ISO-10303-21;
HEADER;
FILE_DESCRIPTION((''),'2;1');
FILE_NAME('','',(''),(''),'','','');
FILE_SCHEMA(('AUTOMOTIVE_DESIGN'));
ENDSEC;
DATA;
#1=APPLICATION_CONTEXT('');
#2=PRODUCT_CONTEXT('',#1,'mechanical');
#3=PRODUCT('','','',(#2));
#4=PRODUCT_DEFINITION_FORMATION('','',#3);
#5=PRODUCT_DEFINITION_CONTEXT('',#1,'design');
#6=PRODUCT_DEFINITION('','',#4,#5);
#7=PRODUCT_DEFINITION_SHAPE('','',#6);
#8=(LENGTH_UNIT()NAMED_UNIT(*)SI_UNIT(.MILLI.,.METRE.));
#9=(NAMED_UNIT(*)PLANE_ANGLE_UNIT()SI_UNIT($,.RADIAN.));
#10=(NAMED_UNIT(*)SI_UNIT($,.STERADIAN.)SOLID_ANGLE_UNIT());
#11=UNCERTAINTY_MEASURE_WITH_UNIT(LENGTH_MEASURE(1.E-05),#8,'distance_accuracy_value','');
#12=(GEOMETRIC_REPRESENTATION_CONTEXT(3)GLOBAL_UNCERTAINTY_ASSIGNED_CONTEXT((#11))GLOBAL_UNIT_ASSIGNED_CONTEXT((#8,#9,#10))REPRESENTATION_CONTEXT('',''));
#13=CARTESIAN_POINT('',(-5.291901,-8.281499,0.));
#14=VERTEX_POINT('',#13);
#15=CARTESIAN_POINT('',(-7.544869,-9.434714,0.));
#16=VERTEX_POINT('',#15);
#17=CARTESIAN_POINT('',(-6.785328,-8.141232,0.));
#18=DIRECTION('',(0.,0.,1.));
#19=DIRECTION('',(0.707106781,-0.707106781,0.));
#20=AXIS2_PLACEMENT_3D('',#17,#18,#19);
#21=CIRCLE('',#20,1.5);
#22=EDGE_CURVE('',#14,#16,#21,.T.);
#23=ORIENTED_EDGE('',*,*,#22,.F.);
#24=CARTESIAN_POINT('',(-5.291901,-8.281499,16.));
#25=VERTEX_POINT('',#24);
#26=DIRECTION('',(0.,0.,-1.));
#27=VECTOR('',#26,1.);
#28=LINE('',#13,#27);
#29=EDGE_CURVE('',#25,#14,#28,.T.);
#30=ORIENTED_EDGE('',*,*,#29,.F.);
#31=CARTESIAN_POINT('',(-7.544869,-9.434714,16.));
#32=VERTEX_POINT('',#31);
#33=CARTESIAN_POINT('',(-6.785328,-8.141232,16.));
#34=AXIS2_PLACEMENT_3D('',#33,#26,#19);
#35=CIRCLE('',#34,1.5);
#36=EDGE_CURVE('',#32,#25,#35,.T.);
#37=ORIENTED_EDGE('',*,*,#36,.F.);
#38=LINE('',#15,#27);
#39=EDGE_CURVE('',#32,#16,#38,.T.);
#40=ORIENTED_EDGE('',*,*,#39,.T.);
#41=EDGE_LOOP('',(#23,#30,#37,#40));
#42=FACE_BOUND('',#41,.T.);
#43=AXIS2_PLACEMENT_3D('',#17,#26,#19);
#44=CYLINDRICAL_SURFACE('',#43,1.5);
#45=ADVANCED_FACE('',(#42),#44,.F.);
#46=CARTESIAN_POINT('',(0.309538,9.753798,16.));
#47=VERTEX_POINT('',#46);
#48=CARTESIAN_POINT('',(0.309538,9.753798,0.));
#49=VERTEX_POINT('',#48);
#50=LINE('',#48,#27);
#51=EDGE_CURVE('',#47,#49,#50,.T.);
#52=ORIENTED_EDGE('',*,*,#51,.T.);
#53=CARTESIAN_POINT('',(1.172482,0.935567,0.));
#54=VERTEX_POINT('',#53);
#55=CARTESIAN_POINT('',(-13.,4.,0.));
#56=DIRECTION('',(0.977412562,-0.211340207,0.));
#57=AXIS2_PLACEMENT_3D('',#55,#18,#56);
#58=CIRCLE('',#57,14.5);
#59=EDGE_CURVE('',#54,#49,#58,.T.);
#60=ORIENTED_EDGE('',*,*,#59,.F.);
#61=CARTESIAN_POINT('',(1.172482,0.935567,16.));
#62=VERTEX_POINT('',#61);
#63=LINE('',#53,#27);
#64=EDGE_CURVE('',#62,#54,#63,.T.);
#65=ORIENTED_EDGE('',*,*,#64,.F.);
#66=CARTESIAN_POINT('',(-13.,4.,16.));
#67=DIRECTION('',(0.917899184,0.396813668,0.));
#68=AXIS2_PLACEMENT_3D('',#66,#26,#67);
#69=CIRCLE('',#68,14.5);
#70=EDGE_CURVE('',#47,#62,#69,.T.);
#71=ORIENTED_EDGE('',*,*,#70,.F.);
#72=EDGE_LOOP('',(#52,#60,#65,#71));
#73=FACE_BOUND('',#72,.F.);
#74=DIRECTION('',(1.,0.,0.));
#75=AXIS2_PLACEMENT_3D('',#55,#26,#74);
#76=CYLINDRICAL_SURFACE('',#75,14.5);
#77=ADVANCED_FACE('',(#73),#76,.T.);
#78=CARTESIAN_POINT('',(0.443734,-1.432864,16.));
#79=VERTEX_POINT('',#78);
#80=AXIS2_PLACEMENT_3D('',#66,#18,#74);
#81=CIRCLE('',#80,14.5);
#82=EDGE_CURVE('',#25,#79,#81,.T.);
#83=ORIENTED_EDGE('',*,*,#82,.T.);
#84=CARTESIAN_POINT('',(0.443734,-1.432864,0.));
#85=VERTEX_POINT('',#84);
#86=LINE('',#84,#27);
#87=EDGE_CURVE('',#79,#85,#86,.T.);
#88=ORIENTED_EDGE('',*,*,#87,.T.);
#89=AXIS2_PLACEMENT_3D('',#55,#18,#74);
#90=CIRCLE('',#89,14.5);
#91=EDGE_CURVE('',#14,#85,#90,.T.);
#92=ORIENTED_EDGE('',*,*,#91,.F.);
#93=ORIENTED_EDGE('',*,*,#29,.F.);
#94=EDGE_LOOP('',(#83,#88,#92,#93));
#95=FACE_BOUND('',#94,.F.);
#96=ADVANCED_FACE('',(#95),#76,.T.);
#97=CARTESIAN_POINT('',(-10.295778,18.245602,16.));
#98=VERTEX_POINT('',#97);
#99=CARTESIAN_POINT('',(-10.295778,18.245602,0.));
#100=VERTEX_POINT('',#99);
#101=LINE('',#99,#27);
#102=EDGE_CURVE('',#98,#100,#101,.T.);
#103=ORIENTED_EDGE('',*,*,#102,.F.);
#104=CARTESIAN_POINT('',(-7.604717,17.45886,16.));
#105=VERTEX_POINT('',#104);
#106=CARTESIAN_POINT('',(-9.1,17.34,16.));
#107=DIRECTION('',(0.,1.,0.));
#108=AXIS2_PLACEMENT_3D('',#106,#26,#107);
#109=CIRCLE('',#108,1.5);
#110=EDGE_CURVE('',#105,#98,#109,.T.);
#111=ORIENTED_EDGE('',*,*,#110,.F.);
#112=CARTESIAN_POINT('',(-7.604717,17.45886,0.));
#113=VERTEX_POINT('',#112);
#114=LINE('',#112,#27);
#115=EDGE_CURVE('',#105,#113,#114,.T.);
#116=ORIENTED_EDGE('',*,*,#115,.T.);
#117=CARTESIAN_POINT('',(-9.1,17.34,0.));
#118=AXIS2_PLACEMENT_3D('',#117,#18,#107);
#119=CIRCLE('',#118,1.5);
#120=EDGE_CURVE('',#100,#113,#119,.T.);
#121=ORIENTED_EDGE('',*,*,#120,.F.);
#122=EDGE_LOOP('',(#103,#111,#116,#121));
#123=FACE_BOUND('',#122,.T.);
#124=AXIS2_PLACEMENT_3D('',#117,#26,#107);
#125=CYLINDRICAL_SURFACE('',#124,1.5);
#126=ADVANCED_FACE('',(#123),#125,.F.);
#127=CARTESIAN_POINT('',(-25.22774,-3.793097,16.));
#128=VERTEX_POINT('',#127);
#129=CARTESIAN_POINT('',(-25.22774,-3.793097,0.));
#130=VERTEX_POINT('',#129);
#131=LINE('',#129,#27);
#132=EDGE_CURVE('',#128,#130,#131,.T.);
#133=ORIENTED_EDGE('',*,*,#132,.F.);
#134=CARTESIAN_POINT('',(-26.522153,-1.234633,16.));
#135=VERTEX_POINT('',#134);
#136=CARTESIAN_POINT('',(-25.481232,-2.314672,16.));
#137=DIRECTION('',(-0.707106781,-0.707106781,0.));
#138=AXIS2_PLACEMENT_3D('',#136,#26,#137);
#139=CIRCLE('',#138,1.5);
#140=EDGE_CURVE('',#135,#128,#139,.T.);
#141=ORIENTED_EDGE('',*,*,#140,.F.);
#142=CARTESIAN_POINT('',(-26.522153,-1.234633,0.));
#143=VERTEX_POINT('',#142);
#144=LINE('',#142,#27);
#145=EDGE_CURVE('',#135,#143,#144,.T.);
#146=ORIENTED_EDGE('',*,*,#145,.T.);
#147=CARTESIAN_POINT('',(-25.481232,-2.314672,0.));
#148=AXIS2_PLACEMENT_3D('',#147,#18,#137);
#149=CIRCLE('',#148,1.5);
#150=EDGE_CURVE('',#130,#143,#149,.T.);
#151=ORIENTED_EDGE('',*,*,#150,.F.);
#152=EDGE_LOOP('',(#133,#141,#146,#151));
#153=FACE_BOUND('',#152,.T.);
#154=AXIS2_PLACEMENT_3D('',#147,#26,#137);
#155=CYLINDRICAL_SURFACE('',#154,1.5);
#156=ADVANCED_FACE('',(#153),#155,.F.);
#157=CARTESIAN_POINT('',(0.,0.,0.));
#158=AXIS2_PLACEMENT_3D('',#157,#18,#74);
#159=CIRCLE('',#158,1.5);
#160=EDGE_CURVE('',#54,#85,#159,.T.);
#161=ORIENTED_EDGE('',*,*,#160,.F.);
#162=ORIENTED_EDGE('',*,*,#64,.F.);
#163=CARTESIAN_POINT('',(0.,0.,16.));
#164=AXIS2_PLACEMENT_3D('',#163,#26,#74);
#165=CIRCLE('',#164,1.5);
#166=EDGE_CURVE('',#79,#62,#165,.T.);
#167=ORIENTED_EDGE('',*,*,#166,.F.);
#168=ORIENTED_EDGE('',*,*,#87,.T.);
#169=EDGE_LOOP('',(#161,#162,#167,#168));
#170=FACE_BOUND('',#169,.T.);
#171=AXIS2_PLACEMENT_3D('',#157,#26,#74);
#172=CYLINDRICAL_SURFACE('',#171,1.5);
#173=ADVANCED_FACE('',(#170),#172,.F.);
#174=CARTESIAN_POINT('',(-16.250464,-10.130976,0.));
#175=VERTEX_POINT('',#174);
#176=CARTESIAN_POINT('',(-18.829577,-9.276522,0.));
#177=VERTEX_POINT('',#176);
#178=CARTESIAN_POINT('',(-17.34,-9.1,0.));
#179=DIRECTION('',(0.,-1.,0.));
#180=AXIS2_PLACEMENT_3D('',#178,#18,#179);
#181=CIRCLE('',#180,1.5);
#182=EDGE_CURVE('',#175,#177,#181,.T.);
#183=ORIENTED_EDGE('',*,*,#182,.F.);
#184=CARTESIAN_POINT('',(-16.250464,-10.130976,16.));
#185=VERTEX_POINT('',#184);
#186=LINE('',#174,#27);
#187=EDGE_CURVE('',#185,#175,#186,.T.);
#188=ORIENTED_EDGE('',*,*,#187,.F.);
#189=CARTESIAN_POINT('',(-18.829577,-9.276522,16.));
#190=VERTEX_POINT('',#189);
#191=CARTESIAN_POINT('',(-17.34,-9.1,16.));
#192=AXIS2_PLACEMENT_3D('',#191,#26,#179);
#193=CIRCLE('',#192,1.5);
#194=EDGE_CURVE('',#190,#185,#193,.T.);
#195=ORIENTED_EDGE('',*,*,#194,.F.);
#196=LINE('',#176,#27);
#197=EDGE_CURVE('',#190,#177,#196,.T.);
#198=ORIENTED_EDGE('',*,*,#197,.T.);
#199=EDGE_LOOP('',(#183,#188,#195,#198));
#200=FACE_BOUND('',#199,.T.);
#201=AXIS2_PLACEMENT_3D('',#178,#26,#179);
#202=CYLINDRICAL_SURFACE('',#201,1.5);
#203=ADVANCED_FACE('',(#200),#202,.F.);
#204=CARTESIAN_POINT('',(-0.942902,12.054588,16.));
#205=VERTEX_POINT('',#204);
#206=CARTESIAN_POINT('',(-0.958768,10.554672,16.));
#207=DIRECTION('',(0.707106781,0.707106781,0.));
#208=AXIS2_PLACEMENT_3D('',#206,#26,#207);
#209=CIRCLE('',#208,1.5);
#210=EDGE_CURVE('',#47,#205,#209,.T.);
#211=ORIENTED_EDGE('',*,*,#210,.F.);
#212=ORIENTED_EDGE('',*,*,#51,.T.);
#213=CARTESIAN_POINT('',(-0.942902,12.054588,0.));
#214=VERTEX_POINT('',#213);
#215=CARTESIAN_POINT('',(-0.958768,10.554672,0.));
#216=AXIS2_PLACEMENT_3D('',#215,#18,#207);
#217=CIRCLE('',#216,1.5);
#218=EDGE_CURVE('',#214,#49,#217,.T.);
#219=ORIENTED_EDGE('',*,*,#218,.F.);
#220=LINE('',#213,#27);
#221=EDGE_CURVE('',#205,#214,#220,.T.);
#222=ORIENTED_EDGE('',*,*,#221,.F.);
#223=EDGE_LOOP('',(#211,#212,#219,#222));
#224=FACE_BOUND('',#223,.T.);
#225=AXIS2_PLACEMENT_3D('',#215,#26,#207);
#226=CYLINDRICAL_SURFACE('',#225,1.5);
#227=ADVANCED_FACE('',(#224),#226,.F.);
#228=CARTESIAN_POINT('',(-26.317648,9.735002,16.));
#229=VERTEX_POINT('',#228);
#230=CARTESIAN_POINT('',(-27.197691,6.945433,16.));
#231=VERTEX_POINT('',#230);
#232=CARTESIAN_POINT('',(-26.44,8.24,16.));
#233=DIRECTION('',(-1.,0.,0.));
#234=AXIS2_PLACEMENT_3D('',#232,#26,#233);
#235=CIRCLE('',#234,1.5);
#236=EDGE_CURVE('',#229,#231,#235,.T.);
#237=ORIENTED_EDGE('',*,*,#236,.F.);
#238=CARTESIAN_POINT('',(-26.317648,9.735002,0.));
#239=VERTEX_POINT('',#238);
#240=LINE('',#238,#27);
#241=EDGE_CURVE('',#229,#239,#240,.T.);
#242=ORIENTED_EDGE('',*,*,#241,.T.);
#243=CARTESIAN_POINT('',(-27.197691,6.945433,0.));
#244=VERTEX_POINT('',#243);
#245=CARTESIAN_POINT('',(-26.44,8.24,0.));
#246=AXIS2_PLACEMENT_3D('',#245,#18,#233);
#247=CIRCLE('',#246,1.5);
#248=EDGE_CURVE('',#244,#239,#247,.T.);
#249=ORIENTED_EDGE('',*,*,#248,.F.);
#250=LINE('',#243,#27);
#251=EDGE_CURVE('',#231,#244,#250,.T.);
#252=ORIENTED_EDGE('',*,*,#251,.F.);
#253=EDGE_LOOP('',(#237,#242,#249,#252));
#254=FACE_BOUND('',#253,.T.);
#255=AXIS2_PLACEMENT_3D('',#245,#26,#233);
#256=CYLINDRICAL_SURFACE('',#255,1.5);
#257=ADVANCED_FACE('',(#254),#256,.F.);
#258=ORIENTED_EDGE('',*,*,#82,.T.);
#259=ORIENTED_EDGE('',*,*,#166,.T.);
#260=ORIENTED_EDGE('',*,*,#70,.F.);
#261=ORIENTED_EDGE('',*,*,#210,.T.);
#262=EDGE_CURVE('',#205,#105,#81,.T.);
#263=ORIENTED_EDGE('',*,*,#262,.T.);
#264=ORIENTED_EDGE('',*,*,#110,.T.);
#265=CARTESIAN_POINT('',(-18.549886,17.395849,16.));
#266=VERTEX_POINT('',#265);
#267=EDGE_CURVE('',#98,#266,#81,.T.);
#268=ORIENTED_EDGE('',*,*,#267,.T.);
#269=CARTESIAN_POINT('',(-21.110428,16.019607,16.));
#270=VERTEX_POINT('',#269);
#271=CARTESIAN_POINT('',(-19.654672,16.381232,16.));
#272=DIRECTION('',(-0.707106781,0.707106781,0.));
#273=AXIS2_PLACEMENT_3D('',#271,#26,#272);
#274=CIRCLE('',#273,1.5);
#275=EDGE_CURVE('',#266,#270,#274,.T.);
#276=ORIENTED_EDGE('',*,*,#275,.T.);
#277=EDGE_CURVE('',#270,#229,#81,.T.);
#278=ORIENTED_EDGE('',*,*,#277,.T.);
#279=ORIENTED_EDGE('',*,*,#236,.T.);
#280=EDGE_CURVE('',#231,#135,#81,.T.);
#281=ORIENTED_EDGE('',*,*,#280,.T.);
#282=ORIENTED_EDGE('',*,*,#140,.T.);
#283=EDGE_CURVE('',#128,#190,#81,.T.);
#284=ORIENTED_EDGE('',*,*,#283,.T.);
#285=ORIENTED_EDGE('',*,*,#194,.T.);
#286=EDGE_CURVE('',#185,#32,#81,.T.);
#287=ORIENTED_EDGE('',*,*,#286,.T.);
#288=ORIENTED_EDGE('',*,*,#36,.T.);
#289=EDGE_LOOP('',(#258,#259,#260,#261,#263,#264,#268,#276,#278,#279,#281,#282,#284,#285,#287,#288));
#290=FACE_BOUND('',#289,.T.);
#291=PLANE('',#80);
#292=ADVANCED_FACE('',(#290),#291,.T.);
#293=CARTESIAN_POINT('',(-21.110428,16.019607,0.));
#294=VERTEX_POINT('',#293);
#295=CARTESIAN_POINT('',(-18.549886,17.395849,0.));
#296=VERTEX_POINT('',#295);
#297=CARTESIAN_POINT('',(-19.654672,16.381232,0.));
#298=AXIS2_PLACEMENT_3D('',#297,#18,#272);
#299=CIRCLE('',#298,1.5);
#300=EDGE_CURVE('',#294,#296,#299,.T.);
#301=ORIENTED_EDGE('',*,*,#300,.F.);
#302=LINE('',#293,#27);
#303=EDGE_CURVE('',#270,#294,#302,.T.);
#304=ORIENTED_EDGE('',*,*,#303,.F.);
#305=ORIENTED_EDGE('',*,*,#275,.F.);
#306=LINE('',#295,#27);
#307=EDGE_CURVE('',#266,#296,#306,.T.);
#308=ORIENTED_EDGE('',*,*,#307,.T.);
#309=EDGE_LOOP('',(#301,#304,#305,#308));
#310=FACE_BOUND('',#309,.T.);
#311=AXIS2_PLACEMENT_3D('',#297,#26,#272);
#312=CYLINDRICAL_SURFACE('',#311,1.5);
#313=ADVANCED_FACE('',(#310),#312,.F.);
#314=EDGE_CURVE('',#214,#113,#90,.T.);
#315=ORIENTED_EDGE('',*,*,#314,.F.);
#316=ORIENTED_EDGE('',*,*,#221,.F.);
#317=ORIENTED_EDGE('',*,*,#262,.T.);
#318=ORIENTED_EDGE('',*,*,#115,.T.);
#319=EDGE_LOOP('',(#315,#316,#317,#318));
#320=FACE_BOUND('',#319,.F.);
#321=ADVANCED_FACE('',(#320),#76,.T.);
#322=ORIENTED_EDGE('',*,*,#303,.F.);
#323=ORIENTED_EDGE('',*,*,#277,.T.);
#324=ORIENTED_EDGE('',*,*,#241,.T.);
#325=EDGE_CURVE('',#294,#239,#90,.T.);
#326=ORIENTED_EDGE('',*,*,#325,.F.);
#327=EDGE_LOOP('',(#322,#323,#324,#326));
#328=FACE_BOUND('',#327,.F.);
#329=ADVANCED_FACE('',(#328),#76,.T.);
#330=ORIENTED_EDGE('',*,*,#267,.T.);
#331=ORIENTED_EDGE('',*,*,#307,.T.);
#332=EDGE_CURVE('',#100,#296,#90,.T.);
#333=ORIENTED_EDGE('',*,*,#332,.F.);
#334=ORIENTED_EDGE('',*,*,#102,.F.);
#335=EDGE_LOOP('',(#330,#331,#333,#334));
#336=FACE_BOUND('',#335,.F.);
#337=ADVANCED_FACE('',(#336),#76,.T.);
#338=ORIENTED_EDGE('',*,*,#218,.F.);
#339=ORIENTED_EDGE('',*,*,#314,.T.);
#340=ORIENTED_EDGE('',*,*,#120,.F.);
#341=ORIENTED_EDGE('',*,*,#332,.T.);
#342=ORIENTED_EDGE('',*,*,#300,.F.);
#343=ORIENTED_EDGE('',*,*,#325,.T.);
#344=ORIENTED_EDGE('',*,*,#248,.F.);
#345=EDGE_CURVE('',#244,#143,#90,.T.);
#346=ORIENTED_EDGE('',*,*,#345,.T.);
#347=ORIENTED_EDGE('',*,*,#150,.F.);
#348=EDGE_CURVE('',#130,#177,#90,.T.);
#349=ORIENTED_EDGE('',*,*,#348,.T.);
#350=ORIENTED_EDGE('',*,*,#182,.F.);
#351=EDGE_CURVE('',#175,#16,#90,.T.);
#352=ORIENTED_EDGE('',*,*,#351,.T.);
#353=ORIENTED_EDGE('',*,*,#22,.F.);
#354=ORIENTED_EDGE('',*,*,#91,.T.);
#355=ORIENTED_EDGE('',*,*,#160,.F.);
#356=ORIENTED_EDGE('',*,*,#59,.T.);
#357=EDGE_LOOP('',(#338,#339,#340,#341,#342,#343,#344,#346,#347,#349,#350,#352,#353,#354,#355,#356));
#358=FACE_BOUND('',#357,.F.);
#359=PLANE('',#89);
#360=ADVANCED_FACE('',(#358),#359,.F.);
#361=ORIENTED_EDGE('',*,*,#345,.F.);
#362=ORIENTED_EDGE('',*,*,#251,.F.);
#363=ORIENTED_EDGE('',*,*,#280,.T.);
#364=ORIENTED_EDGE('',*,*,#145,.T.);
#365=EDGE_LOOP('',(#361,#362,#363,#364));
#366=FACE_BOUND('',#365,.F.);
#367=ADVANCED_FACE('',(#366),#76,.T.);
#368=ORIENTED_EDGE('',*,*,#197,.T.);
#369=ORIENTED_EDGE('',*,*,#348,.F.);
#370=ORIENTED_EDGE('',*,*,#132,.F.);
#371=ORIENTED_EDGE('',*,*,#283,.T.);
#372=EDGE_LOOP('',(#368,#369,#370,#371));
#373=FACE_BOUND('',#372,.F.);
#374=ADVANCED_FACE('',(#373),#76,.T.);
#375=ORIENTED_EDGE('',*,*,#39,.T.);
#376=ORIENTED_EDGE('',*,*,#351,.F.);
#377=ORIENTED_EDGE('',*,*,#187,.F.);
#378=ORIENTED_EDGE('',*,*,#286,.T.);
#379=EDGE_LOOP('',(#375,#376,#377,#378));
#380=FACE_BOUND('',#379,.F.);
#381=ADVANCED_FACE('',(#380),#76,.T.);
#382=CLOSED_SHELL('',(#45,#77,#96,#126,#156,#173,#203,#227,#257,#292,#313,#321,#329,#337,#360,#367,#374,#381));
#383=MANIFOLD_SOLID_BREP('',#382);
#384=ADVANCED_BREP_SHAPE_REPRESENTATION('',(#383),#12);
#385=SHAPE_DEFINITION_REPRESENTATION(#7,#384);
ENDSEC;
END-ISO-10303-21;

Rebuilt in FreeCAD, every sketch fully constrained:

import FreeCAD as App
import Part
import Sketcher

V = App.Vector

doc = App.newDocument("Part")
body = doc.addObject("PartDesign::Body", "Body")

# Sketch on XY plane
sketch1 = body.newObject("Sketcher::SketchObject", "Sketch")
sketch1.AttachmentSupport = (doc.getObject("XY_Plane"), [""])
sketch1.MapMode = "FlatFace"
sketch1.addGeometry(Part.Circle(V(0, 0, 0), V(0, 0, 1), 1.5), False)
sketch1.addConstraint([
    Sketcher.Constraint("Coincident", 0, 3, -1, 1),
    Sketcher.Constraint("Diameter", 0, 3.0),
])
pad1 = body.newObject("PartDesign::Pad", "Pad")
pad1.Profile = sketch1
pad1.Length = 18
body2 = doc.addObject("PartDesign::Body", "Body001")
body2.AllowCompound = True
doc.recompute()

body2.BaseFeature = body
doc.recompute()

body3 = doc.addObject("PartDesign::Body", "Body002")
body3.BaseFeature = body
body3.Placement = App.Placement(V(-0.958768, 10.554672, 0), App.Rotation(V(0, 0, 1), 45))
boolean = body2.newObject("PartDesign::Boolean", "Boolean")
boolean.Type = "Fuse"
boolean.addObjects([body3])
doc.recompute()

body4 = doc.addObject("PartDesign::Body", "Body003")
body4.BaseFeature = body
body4.Placement = App.Placement(V(-9.1, 17.34, 0), App.Rotation(V(0, 0, 1), 90))
boolean2 = body2.newObject("PartDesign::Boolean", "Boolean001")
boolean2.Type = "Fuse"
boolean2.addObjects([body4])
doc.recompute()

body5 = doc.addObject("PartDesign::Body", "Body004")
body5.BaseFeature = body
body5.Placement = App.Placement(V(-19.654672, 16.381232, 0), App.Rotation(V(0, 0, 1), 135))
boolean3 = body2.newObject("PartDesign::Boolean", "Boolean002")
boolean3.Type = "Fuse"
boolean3.addObjects([body5])
doc.recompute()

body6 = doc.addObject("PartDesign::Body", "Body005")
body6.BaseFeature = body
body6.Placement = App.Placement(V(-26.44, 8.24, 0), App.Rotation(V(0, 0, 1), 180))
boolean4 = body2.newObject("PartDesign::Boolean", "Boolean003")
boolean4.Type = "Fuse"
boolean4.addObjects([body6])
doc.recompute()

body7 = doc.addObject("PartDesign::Body", "Body006")
body7.BaseFeature = body
body7.Placement = App.Placement(V(-25.481232, -2.314672, 0), App.Rotation(V(0, 0, 1), 225))
boolean5 = body2.newObject("PartDesign::Boolean", "Boolean004")
boolean5.Type = "Fuse"
boolean5.addObjects([body7])
doc.recompute()

body8 = doc.addObject("PartDesign::Body", "Body007")
body8.BaseFeature = body
body8.Placement = App.Placement(V(-17.34, -9.1, 0), App.Rotation(V(0, 0, 1), 270))
boolean6 = body2.newObject("PartDesign::Boolean", "Boolean005")
boolean6.Type = "Fuse"
boolean6.addObjects([body8])
doc.recompute()

body.Placement = App.Placement(V(-6.785328, -8.141232, 0), App.Rotation(V(0, 0, 1), 315))
boolean7 = body2.newObject("PartDesign::Boolean", "Boolean006")
boolean7.Type = "Fuse"
boolean7.addObjects([body])
body9 = doc.addObject("PartDesign::Body", "Body008")

# Sketch on XY plane
sketch2 = body9.newObject("Sketcher::SketchObject", "Sketch001")
sketch2.AttachmentSupport = (doc.getObject("XY_Plane008"), [""])
sketch2.MapMode = "FlatFace"
sketch2.addGeometry(Part.Circle(V(-13, 4, 0), V(0, 0, 1), 14), False)
sketch2.addConstraint([
    Sketcher.Constraint("Diameter", 0, 29.0),
    Sketcher.Constraint("DistanceX", 0, 3, -1, 1, 13.0),
    Sketcher.Constraint("DistanceY", -1, 1, 0, 3, 4.0),
])
pad2 = body9.newObject("PartDesign::Pad", "Pad001")
pad2.Profile = sketch2
pad2.Length = 16
doc.recompute()

boolean8 = body9.newObject("PartDesign::Boolean", "Boolean007")
boolean8.Type = "Cut"
boolean8.addObjects([body2])

doc.recompute()
